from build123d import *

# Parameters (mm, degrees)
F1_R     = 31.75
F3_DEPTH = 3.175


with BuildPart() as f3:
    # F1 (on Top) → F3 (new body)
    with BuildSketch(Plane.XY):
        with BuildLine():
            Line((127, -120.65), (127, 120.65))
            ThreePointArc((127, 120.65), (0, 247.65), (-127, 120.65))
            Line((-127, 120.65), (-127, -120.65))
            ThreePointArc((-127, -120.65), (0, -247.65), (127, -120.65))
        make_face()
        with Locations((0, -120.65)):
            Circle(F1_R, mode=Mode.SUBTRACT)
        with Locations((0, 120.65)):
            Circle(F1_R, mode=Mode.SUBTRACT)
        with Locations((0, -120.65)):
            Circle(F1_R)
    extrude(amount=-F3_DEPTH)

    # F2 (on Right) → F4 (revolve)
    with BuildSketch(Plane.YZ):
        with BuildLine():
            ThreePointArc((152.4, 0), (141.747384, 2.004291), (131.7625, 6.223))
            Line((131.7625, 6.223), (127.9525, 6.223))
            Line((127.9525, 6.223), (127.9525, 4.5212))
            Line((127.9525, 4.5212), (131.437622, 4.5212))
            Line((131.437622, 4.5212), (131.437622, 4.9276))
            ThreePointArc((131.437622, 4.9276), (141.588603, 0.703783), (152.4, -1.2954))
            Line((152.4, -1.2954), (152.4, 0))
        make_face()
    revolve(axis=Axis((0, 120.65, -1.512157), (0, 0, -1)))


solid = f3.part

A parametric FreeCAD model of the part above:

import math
import FreeCAD as App
import Part
import Sketcher
from FreeCAD import Vector
Q = App.Units.Quantity

doc = App.newDocument("Part")
body = doc.addObject("PartDesign::Body", "Body")

# Sketch on XY plane
sketch1 = body.newObject("Sketcher::SketchObject", "Sketch")
sketch1.AttachmentSupport = (doc.getObject("XY_Plane"), [""])
sketch1.MapMode = "FlatFace"
sketch1.addGeometry([
    Part.LineSegment(Vector(127, -121, 0), Vector(127, 121, 0)),  # 0
    Part.ArcOfCircle(Part.Circle(Vector(0, 121, 0), Vector(0, 0, 1), 127), math.radians(0), math.radians(180)),  # 1
    Part.LineSegment(Vector(-127, 121, 0), Vector(-127, -121, 0)),  # 2
    Part.ArcOfCircle(Part.Circle(Vector(0, -121, 0), Vector(0, 0, 1), 127), math.radians(180), math.radians(360)),  # 3
    Part.Circle(Vector(0, 121, 0), Vector(0, 0, 1), 32),  # 4
], False)
sketch1.addConstraint([
    Sketcher.Constraint("Tangent", 0, 2, 1, 1),
    Sketcher.Constraint("Tangent", 1, 2, 2, 1),
    Sketcher.Constraint("Tangent", 2, 2, 3, 1),
    Sketcher.Constraint("Tangent", 3, 2, 0, 1),
    Sketcher.Constraint("Vertical", 0),
    Sketcher.Constraint("Vertical", 2),
    Sketcher.Constraint("Coincident", 4, 3, 1, 3),
    Sketcher.Constraint("Symmetric", 1, 3, 3, 3, -1, 1),
    Sketcher.Constraint("Radius", 1, Q("5 in")),
    Sketcher.Constraint("Diameter", 4, Q("2.5 in")),
    Sketcher.Constraint("DistanceY", 0, 1, 0, 2, Q("9.5 in")),
])
pad1 = body.newObject("PartDesign::Pad", "Pad")
pad1.Profile = sketch1
pad1.Length = Q("0.125 in")
pad1.Reversed = True

# Sketch on YZ plane
sketch2 = body.newObject("Sketcher::SketchObject", "Sketch001")
sketch2.AttachmentSupport = (doc.getObject("YZ_Plane"), [""])
sketch2.MapMode = "FlatFace"
sketch2.addGeometry([
    Part.ArcOfCircle(Part.Circle(Vector(156.41, 50.64, 0), Vector(0, 0, 1), 50.8), math.radians(-119), math.radians(-95)),  # 0
    Part.LineSegment(Vector(131.76, 6.22, 0), Vector(127.95, 6.22, 0)),  # 1
    Part.LineSegment(Vector(127.95, 6.22, 0), Vector(127.95, 4.52, 0)),  # 2
    Part.LineSegment(Vector(127.95, 4.52, 0), Vector(131.44, 4.52, 0)),  # 3
    Part.LineSegment(Vector(131.44, 4.52, 0), Vector(131.44, 4.93, 0)),  # 4
    Part.ArcOfCircle(Part.Circle(Vector(156.41, 50.64, 0), Vector(0, 0, 1), 52.09), math.radians(-119), math.radians(-94)),  # 5
    Part.LineSegment(Vector(152.4, -1.3, 0), Vector(152.4, 0, 0)),  # 6
], False)
sketch2.addGeometry(Part.LineSegment(Vector(120.65, 50.64, 0), Vector(120.65, -1.3, 0)), True)  # axis
sketch2.addConstraint([
    Sketcher.Constraint("Coincident", 0, 1, 1, 1),
    Sketcher.Constraint("Coincident", 1, 2, 2, 1),
    Sketcher.Constraint("Coincident", 2, 2, 3, 1),
    Sketcher.Constraint("Coincident", 3, 2, 4, 1),
    Sketcher.Constraint("Coincident", 4, 2, 5, 1),
    Sketcher.Constraint("Coincident", 5, 2, 6, 1),
    Sketcher.Constraint("Coincident", 6, 2, 0, 2),
    Sketcher.Constraint("Horizontal", 1),
    Sketcher.Constraint("Vertical", 2),
    Sketcher.Constraint("Horizontal", 3),
    Sketcher.Constraint("Vertical", 4),
    Sketcher.Constraint("Vertical", 6),
    Sketcher.Constraint("Vertical", 7),
    Sketcher.Constraint("PointOnObject", 6, 2, -1),
    Sketcher.Constraint("Horizontal", 5, 3, 7, 1),
    Sketcher.Constraint("Horizontal", 5, 2, 7, 2),
    Sketcher.Constraint("DistanceX", -1, 1, 5, 2, Q("6 in")),
    Sketcher.Constraint("DistanceX", 1, 2, 1, 1, Q("0.15 in")),
    Sketcher.Constraint("DistanceY", 2, 2, 2, 1, Q("0.067 in")),
    Sketcher.Constraint("DistanceY", 4, 1, 4, 2, Q("0.016 in")),
    Sketcher.Constraint("DistanceY", 6, 1, 6, 2, Q("0.051 in")),
    Sketcher.Constraint("DistanceX", -1, 1, 7, 1, Q("4.75 in")),
    Sketcher.Constraint("DistanceX", -1, 1, 0, 1, Q("5.1875 in")),
    Sketcher.Constraint("DistanceY", -1, 1, 0, 1, Q("0.245 in")),
    Sketcher.Constraint("Radius", 0, 50.800008),
    Sketcher.Constraint("Radius", 5, 52.091474),
    Sketcher.Constraint("DistanceX", 3, 1, 3, 2, 3.485122),
])
revolution = body.newObject("PartDesign::Revolution", "Revolution")
revolution.Profile = sketch2
revolution.ReferenceAxis = (sketch2, ["Axis0"])
revolution.Angle = 360

doc.recompute()
